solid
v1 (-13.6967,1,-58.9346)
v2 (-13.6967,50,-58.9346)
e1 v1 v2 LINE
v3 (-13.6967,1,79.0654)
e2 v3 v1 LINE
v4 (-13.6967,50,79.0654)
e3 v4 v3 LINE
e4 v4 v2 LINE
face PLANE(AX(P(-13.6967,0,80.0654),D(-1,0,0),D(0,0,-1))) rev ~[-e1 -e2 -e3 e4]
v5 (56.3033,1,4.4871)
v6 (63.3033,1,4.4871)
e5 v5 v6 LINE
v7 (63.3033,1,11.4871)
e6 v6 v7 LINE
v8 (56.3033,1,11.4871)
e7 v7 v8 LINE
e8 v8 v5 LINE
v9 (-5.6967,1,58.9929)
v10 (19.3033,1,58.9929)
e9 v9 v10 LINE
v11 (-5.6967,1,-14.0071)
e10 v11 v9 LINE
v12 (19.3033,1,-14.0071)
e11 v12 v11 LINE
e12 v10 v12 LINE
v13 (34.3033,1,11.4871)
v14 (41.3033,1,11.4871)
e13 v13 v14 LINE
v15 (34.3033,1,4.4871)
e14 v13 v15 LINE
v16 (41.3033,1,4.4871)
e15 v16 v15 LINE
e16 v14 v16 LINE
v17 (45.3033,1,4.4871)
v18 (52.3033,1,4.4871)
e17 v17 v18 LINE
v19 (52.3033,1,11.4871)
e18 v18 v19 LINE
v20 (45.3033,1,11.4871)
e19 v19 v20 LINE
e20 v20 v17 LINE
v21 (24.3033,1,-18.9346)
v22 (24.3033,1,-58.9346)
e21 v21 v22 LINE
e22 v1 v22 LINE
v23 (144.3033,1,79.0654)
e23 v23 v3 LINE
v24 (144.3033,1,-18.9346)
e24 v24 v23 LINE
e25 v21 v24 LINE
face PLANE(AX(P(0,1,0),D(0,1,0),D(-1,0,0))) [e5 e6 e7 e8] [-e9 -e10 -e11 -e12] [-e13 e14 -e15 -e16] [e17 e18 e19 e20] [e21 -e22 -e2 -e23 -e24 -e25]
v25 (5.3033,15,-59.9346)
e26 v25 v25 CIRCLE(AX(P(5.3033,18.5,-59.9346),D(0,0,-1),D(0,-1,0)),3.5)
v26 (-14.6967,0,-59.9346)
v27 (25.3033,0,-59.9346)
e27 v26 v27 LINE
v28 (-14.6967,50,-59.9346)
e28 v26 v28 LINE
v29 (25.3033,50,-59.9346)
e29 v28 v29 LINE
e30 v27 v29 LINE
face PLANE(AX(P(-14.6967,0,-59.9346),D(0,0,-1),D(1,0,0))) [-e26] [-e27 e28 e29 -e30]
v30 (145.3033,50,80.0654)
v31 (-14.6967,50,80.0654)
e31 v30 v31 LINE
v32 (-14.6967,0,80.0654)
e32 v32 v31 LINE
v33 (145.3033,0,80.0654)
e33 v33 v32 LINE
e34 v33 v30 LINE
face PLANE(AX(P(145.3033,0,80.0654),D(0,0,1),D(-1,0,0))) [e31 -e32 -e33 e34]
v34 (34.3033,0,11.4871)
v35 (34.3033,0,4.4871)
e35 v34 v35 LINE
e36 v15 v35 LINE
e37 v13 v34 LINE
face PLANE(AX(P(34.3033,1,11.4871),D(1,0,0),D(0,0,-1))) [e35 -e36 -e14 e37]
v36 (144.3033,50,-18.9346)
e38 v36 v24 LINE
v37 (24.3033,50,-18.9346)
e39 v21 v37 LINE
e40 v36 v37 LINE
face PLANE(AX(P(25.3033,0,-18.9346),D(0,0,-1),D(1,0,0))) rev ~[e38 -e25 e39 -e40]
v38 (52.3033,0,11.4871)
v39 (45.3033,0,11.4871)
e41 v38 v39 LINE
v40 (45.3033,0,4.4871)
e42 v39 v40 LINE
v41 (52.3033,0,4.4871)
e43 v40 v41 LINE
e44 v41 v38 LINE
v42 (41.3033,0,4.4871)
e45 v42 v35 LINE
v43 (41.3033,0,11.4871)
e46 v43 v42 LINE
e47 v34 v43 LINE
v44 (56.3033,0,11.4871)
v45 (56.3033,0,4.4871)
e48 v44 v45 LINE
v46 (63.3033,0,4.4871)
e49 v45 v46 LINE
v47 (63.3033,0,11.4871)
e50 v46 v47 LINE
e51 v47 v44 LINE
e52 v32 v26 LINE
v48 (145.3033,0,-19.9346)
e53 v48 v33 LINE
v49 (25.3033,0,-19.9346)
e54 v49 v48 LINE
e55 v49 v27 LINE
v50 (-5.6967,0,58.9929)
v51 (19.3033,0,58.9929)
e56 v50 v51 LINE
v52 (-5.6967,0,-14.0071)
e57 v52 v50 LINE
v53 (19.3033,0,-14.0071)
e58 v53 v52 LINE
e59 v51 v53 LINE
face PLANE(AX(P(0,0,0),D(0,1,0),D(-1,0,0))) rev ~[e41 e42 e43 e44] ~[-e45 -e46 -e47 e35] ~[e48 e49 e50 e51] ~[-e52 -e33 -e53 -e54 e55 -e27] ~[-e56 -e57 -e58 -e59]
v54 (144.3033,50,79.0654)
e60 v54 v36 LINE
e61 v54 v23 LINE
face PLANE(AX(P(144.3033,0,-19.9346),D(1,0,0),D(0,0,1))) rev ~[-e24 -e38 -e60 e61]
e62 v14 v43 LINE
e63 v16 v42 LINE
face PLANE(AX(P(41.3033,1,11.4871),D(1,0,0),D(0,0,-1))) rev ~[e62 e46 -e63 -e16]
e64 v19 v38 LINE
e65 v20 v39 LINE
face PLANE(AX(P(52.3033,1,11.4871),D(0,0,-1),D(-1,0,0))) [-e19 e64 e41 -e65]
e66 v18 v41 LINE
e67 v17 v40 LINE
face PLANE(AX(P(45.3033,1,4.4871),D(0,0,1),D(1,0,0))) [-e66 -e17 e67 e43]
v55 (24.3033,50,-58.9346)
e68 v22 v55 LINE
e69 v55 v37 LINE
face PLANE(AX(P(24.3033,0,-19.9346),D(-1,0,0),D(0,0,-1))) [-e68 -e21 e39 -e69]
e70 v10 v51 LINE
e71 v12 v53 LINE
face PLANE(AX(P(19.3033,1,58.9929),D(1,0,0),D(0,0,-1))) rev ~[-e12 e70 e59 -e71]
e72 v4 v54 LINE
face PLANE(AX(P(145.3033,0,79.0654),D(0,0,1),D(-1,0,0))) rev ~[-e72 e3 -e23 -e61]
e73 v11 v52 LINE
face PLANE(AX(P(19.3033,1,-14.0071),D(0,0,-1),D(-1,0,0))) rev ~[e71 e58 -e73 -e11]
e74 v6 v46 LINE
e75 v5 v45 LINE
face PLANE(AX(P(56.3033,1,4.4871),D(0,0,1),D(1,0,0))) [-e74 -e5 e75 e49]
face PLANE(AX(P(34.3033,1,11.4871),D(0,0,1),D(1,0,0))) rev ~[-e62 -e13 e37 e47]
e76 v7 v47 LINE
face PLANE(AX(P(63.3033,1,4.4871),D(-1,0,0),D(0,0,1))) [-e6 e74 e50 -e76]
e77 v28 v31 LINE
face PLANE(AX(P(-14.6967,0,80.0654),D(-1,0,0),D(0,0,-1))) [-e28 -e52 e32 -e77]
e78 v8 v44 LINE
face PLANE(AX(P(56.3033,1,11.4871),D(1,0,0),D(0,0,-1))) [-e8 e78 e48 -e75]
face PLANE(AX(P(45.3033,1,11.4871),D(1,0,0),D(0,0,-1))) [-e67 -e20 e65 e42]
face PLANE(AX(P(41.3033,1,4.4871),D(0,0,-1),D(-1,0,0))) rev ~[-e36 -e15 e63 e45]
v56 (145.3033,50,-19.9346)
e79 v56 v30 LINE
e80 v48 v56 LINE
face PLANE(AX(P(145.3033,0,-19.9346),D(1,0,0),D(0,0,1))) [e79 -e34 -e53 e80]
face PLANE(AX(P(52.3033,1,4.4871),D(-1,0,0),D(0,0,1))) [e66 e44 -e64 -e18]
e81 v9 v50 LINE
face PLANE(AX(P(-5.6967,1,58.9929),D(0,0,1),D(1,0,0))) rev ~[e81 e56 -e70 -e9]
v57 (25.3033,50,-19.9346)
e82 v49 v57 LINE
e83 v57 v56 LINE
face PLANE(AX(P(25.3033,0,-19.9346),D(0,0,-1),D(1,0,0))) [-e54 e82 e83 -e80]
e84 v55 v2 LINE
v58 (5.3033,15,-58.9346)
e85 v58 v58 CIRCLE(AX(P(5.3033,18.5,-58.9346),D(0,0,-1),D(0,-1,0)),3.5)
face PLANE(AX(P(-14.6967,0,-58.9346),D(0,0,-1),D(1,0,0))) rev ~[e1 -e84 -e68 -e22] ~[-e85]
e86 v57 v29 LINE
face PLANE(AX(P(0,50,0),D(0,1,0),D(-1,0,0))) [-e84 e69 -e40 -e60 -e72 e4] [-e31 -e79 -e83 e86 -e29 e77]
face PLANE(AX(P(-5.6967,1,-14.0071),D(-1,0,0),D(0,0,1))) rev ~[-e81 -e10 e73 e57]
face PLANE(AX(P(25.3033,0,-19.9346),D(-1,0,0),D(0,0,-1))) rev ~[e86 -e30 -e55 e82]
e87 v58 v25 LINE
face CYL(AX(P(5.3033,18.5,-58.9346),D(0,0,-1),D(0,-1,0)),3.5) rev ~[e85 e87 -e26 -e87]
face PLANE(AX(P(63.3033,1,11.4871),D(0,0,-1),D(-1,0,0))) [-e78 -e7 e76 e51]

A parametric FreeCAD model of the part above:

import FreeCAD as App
import Part
import Sketcher
Q = App.Units.Quantity


def faces_at(feature, points):
    """Names of the faces that lie closest to the given points."""
    faces = feature.Shape.Faces
    near = lambda p: min(range(len(faces)), key=lambda i: faces[i].distToShape(Part.Vertex(*p))[0])
    return sorted({f"Face{near(p) + 1}" for p in points})

doc = App.newDocument("Part")
params = doc.addObject("Spreadsheet::Sheet", "Params")
for row, (alias, value) in enumerate([
    ("sketch1_width", "40 mm"),
    ("sketch1_width2", "160 mm"),
    ("sketch1_height", "100 mm"),
    ("pad1_length", "50 mm"),
    ("thickness_wall", "1 mm"),
    ("sketch2_diameter", "7 mm"),
    ("hole_diameter", "7 mm"),
    ("sketch3_width", "25 mm"),
    ("sketch3_height", "73 mm"),
    ("pocket1_length", "10 mm"),
    ("sketch4_width", "7 mm"),
    ("pocket2_length", "10 mm"),
    ("sketch5_width", "7 mm"),
    ("pocket3_length", "10 mm"),
], start=1):
    params.set(f"A{row}", alias)
    params.set(f"B{row}", "=" + value)
    params.setAlias(f"B{row}", alias)

body = doc.addObject("PartDesign::Body", "Body")

sketch1 = body.newObject("Sketcher::SketchObject", "Sketch")
sketch1.AttachmentSupport = (doc.getObject("XZ_Plane"), [""])
sketch1.MapMode = "FlatFace"
sketch1.addGeometry(Part.LineSegment(App.Vector(145, -20, 0), App.Vector(25, -20, 0)), False)
sketch1.addGeometry(Part.LineSegment(App.Vector(25, -20, 0), App.Vector(25, -60, 0)), False)
sketch1.addGeometry(Part.LineSegment(App.Vector(25, -60, 0), App.Vector(-15, -60, 0)), False)
sketch1.addGeometry(Part.LineSegment(App.Vector(-15, -60, 0), App.Vector(-15, 80, 0)), False)
sketch1.addGeometry(Part.LineSegment(App.Vector(-15, 80, 0), App.Vector(145, 80, 0)), False)
sketch1.addGeometry(Part.LineSegment(App.Vector(145, 80, 0), App.Vector(145, -20, 0)), False)
sketch1.addConstraint(Sketcher.Constraint("Coincident", 0, 2, 1, 1))
sketch1.addConstraint(Sketcher.Constraint("Coincident", 1, 2, 2, 1))
sketch1.addConstraint(Sketcher.Constraint("Coincident", 2, 2, 3, 1))
sketch1.addConstraint(Sketcher.Constraint("Coincident", 3, 2, 4, 1))
sketch1.addConstraint(Sketcher.Constraint("Coincident", 4, 2, 5, 1))
sketch1.addConstraint(Sketcher.Constraint("Coincident", 5, 2, 0, 1))
sketch1.addConstraint(Sketcher.Constraint("Horizontal", 0))
sketch1.addConstraint(Sketcher.Constraint("Vertical", 1))
sketch1.addConstraint(Sketcher.Constraint("Horizontal", 2))
sketch1.addConstraint(Sketcher.Constraint("Vertical", 3))
sketch1.addConstraint(Sketcher.Constraint("Horizontal", 4))
sketch1.addConstraint(Sketcher.Constraint("Vertical", 5))
sketch1.addConstraint(Sketcher.Constraint("Equal", 2, 1))
sketch1.addConstraint(Sketcher.Constraint("DistanceX", 2, 2, 2, 1, Q("40 mm")))
sketch1.addConstraint(Sketcher.Constraint("DistanceX", 4, 1, 4, 2, Q("160 mm")))
sketch1.addConstraint(Sketcher.Constraint("DistanceY", 5, 2, 5, 1, Q("100 mm")))
sketch1.addConstraint(Sketcher.Constraint("DistanceX", -1, 1, 0, 2, Q("25.3033 mm")))
sketch1.addConstraint(Sketcher.Constraint("DistanceY", 0, 2, -1, 1, Q("19.9346 mm")))
sketch1.setExpression("Constraints[13]", "Params.sketch1_width")
sketch1.setExpression("Constraints[14]", "Params.sketch1_width2")
sketch1.setExpression("Constraints[15]", "Params.sketch1_height")
pad1 = body.newObject("PartDesign::Pad", "Pad")
pad1.Profile = sketch1
pad1.setExpression("Length", "Params.pad1_length")
pad1.Reversed = True
doc.recompute()

thickness = body.newObject("PartDesign::Thickness", "Thickness")
thickness.Base = (pad1, faces_at(pad1, [(51.97, 50, 46.732)]))
thickness.setExpression("Value", "Params.thickness_wall")
thickness.Reversed = True
thickness.Join = "Intersection"

sketch2 = body.newObject("Sketcher::SketchObject", "Sketch001")
sketch2.AttachmentSupport = (doc.getObject("XY_Plane"), [""])
sketch2.MapMode = "FlatFace"
sketch2.AttachmentOffset = App.Placement(App.Vector(0, 0, -58.9346), App.Rotation())
sketch2.addGeometry(Part.Circle(App.Vector(5.3, 18.5, 0), App.Vector(0, 0, 1), 3.5), False)
sketch2.addConstraint(Sketcher.Constraint("Diameter", 0, Q("7 mm")))
sketch2.addConstraint(Sketcher.Constraint("DistanceY", -1, 1, 0, 3, Q("18.5 mm")))
sketch2.addConstraint(Sketcher.Constraint("DistanceX", -1, 1, 0, 3, Q("5.3033 mm")))
sketch2.setExpression("Constraints[0]", "Params.sketch2_diameter")
doc.recompute()
hole = body.newObject("PartDesign::Hole", "Hole")
hole.Profile = sketch2
hole.ThreadType = "None"
hole.setExpression("Diameter", "Params.hole_diameter")
hole.DepthType = "ThroughAll"

sketch3 = body.newObject("Sketcher::SketchObject", "Sketch002")
sketch3.AttachmentSupport = (doc.getObject("XZ_Plane"), [""])
sketch3.MapMode = "FlatFace"
sketch3.AttachmentOffset = App.Placement(App.Vector(0, 0, -1), App.Rotation())
sketch3.addGeometry(Part.LineSegment(App.Vector(19, -14, 0), App.Vector(-6, -14, 0)), False)
sketch3.addGeometry(Part.LineSegment(App.Vector(-6, -14, 0), App.Vector(-6, 59, 0)), False)
sketch3.addGeometry(Part.LineSegment(App.Vector(-6, 59, 0), App.Vector(19, 59, 0)), False)
sketch3.addGeometry(Part.LineSegment(App.Vector(19, 59, 0), App.Vector(19, -14, 0)), False)
sketch3.addConstraint(Sketcher.Constraint("Coincident", 0, 2, 1, 1))
sketch3.addConstraint(Sketcher.Constraint("Coincident", 1, 2, 2, 1))
sketch3.addConstraint(Sketcher.Constraint("Coincident", 2, 2, 3, 1))
sketch3.addConstraint(Sketcher.Constraint("Coincident", 3, 2, 0, 1))
sketch3.addConstraint(Sketcher.Constraint("Horizontal", 0))
sketch3.addConstraint(Sketcher.Constraint("Vertical", 1))
sketch3.addConstraint(Sketcher.Constraint("Horizontal", 2))
sketch3.addConstraint(Sketcher.Constraint("Vertical", 3))
sketch3.addConstraint(Sketcher.Constraint("DistanceX", 0, 2, 0, 1, Q("25 mm")))
sketch3.addConstraint(Sketcher.Constraint("DistanceY", 1, 1, 1, 2, Q("73 mm")))
sketch3.addConstraint(Sketcher.Constraint("DistanceY", 0, 2, -1, 1, Q("14.007 mm")))
sketch3.addConstraint(Sketcher.Constraint("DistanceX", 0, 2, -1, 1, Q("5.6967 mm")))
sketch3.setExpression("Constraints[8]", "Params.sketch3_width")
sketch3.setExpression("Constraints[9]", "Params.sketch3_height")
pocket1 = body.newObject("PartDesign::Pocket", "Pocket")
pocket1.Profile = sketch3
pocket1.setExpression("Length", "Params.pocket1_length")
pocket1.Reversed = True

sketch4 = body.newObject("Sketcher::SketchObject", "Sketch003")
sketch4.AttachmentSupport = (doc.getObject("XZ_Plane"), [""])
sketch4.MapMode = "FlatFace"
sketch4.AttachmentOffset = App.Placement(App.Vector(0, 0, -1), App.Rotation())
sketch4.addGeometry(Part.LineSegment(App.Vector(34, 4, 0), App.Vector(34, 11, 0)), False)
sketch4.addGeometry(Part.LineSegment(App.Vector(34, 11, 0), App.Vector(41, 11, 0)), False)
sketch4.addGeometry(Part.LineSegment(App.Vector(41, 11, 0), App.Vector(41, 4, 0)), False)
sketch4.addGeometry(Part.LineSegment(App.Vector(41, 4, 0), App.Vector(34, 4, 0)), False)
sketch4.addConstraint(Sketcher.Constraint("Coincident", 0, 2, 1, 1))
sketch4.addConstraint(Sketcher.Constraint("Coincident", 1, 2, 2, 1))
sketch4.addConstraint(Sketcher.Constraint("Coincident", 2, 2, 3, 1))
sketch4.addConstraint(Sketcher.Constraint("Coincident", 3, 2, 0, 1))
sketch4.addConstraint(Sketcher.Constraint("Vertical", 0))
sketch4.addConstraint(Sketcher.Constraint("Horizontal", 1))
sketch4.addConstraint(Sketcher.Constraint("Vertical", 2))
sketch4.addConstraint(Sketcher.Constraint("Horizontal", 3))
sketch4.addConstraint(Sketcher.Constraint("Equal", 3, 0))
sketch4.addConstraint(Sketcher.Constraint("DistanceX", 1, 1, 1, 2, Q("7 mm")))
sketch4.addConstraint(Sketcher.Constraint("DistanceY", -1, 1, 0, 2, Q("11.487 mm")))
sketch4.addConstraint(Sketcher.Constraint("DistanceX", -1, 1, 0, 2, Q("34.3033 mm")))
sketch4.setExpression("Constraints[9]", "Params.sketch4_width")
pocket2 = body.newObject("PartDesign::Pocket", "Pocket001")
pocket2.Profile = sketch4
pocket2.setExpression("Length", "Params.pocket2_length")
pocket2.Reversed = True

sketch5 = body.newObject("Sketcher::SketchObject", "Sketch004")
sketch5.AttachmentSupport = (doc.getObject("XZ_Plane"), [""])
sketch5.MapMode = "FlatFace"
sketch5.AttachmentOffset = App.Placement(App.Vector(0, 0, -1), App.Rotation())
sketch5.addGeometry(Part.LineSegment(App.Vector(56, 4, 0), App.Vector(56, 11, 0)), False)
sketch5.addGeometry(Part.LineSegment(App.Vector(56, 11, 0), App.Vector(63, 11, 0)), False)
sketch5.addGeometry(Part.LineSegment(App.Vector(63, 11, 0), App.Vector(63, 4, 0)), False)
sketch5.addGeometry(Part.LineSegment(App.Vector(63, 4, 0), App.Vector(56, 4, 0)), False)
sketch5.addGeometry(Part.LineSegment(App.Vector(45, 4, 0), App.Vector(45, 11, 0)), False)
sketch5.addGeometry(Part.LineSegment(App.Vector(45, 11, 0), App.Vector(52, 11, 0)), False)
sketch5.addGeometry(Part.LineSegment(App.Vector(52, 11, 0), App.Vector(52, 4, 0)), False)
sketch5.addGeometry(Part.LineSegment(App.Vector(52, 4, 0), App.Vector(45, 4, 0)), False)
sketch5.addConstraint(Sketcher.Constraint("Coincident", 0, 2, 1, 1))
sketch5.addConstraint(Sketcher.Constraint("Coincident", 1, 2, 2, 1))
sketch5.addConstraint(Sketcher.Constraint("Coincident", 2, 2, 3, 1))
sketch5.addConstraint(Sketcher.Constraint("Coincident", 3, 2, 0, 1))
sketch5.addConstraint(Sketcher.Constraint("Coincident", 4, 2, 5, 1))
sketch5.addConstraint(Sketcher.Constraint("Coincident", 5, 2, 6, 1))
sketch5.addConstraint(Sketcher.Constraint("Coincident", 6, 2, 7, 1))
sketch5.addConstraint(Sketcher.Constraint("Coincident", 7, 2, 4, 1))
sketch5.addConstraint(Sketcher.Constraint("Vertical", 0))
sketch5.addConstraint(Sketcher.Constraint("Horizontal", 1))
sketch5.addConstraint(Sketcher.Constraint("Vertical", 2))
sketch5.addConstraint(Sketcher.Constraint("Horizontal", 3))
sketch5.addConstraint(Sketcher.Constraint("Vertical", 4))
sketch5.addConstraint(Sketcher.Constraint("Horizontal", 5))
sketch5.addConstraint(Sketcher.Constraint("Vertical", 6))
sketch5.addConstraint(Sketcher.Constraint("Horizontal", 7))
sketch5.addConstraint(Sketcher.Constraint("Horizontal", 1, 2, 4, 2))
sketch5.addConstraint(Sketcher.Constraint("Horizontal", 3, 2, 6, 2))
sketch5.addConstraint(Sketcher.Constraint("Equal", 3, 5))
sketch5.addConstraint(Sketcher.Constraint("Equal", 7, 0))
sketch5.addConstraint(Sketcher.Constraint("DistanceX", 1, 1, 1, 2, Q("7 mm")))
sketch5.addConstraint(Sketcher.Constraint("DistanceX", 5, 2, 0, 2, Q("4 mm")))
sketch5.addConstraint(Sketcher.Constraint("DistanceY", -1, 1, 0, 2, Q("11.487 mm")))
sketch5.addConstraint(Sketcher.Constraint("DistanceX", -1, 1, 0, 2, Q("56.3033 mm")))
sketch5.setExpression("Constraints[20]", "Params.sketch5_width")
pocket3 = body.newObject("PartDesign::Pocket", "Pocket002")
pocket3.Profile = sketch5
pocket3.setExpression("Length", "Params.pocket3_length")
pocket3.Reversed = True

doc.recompute()
